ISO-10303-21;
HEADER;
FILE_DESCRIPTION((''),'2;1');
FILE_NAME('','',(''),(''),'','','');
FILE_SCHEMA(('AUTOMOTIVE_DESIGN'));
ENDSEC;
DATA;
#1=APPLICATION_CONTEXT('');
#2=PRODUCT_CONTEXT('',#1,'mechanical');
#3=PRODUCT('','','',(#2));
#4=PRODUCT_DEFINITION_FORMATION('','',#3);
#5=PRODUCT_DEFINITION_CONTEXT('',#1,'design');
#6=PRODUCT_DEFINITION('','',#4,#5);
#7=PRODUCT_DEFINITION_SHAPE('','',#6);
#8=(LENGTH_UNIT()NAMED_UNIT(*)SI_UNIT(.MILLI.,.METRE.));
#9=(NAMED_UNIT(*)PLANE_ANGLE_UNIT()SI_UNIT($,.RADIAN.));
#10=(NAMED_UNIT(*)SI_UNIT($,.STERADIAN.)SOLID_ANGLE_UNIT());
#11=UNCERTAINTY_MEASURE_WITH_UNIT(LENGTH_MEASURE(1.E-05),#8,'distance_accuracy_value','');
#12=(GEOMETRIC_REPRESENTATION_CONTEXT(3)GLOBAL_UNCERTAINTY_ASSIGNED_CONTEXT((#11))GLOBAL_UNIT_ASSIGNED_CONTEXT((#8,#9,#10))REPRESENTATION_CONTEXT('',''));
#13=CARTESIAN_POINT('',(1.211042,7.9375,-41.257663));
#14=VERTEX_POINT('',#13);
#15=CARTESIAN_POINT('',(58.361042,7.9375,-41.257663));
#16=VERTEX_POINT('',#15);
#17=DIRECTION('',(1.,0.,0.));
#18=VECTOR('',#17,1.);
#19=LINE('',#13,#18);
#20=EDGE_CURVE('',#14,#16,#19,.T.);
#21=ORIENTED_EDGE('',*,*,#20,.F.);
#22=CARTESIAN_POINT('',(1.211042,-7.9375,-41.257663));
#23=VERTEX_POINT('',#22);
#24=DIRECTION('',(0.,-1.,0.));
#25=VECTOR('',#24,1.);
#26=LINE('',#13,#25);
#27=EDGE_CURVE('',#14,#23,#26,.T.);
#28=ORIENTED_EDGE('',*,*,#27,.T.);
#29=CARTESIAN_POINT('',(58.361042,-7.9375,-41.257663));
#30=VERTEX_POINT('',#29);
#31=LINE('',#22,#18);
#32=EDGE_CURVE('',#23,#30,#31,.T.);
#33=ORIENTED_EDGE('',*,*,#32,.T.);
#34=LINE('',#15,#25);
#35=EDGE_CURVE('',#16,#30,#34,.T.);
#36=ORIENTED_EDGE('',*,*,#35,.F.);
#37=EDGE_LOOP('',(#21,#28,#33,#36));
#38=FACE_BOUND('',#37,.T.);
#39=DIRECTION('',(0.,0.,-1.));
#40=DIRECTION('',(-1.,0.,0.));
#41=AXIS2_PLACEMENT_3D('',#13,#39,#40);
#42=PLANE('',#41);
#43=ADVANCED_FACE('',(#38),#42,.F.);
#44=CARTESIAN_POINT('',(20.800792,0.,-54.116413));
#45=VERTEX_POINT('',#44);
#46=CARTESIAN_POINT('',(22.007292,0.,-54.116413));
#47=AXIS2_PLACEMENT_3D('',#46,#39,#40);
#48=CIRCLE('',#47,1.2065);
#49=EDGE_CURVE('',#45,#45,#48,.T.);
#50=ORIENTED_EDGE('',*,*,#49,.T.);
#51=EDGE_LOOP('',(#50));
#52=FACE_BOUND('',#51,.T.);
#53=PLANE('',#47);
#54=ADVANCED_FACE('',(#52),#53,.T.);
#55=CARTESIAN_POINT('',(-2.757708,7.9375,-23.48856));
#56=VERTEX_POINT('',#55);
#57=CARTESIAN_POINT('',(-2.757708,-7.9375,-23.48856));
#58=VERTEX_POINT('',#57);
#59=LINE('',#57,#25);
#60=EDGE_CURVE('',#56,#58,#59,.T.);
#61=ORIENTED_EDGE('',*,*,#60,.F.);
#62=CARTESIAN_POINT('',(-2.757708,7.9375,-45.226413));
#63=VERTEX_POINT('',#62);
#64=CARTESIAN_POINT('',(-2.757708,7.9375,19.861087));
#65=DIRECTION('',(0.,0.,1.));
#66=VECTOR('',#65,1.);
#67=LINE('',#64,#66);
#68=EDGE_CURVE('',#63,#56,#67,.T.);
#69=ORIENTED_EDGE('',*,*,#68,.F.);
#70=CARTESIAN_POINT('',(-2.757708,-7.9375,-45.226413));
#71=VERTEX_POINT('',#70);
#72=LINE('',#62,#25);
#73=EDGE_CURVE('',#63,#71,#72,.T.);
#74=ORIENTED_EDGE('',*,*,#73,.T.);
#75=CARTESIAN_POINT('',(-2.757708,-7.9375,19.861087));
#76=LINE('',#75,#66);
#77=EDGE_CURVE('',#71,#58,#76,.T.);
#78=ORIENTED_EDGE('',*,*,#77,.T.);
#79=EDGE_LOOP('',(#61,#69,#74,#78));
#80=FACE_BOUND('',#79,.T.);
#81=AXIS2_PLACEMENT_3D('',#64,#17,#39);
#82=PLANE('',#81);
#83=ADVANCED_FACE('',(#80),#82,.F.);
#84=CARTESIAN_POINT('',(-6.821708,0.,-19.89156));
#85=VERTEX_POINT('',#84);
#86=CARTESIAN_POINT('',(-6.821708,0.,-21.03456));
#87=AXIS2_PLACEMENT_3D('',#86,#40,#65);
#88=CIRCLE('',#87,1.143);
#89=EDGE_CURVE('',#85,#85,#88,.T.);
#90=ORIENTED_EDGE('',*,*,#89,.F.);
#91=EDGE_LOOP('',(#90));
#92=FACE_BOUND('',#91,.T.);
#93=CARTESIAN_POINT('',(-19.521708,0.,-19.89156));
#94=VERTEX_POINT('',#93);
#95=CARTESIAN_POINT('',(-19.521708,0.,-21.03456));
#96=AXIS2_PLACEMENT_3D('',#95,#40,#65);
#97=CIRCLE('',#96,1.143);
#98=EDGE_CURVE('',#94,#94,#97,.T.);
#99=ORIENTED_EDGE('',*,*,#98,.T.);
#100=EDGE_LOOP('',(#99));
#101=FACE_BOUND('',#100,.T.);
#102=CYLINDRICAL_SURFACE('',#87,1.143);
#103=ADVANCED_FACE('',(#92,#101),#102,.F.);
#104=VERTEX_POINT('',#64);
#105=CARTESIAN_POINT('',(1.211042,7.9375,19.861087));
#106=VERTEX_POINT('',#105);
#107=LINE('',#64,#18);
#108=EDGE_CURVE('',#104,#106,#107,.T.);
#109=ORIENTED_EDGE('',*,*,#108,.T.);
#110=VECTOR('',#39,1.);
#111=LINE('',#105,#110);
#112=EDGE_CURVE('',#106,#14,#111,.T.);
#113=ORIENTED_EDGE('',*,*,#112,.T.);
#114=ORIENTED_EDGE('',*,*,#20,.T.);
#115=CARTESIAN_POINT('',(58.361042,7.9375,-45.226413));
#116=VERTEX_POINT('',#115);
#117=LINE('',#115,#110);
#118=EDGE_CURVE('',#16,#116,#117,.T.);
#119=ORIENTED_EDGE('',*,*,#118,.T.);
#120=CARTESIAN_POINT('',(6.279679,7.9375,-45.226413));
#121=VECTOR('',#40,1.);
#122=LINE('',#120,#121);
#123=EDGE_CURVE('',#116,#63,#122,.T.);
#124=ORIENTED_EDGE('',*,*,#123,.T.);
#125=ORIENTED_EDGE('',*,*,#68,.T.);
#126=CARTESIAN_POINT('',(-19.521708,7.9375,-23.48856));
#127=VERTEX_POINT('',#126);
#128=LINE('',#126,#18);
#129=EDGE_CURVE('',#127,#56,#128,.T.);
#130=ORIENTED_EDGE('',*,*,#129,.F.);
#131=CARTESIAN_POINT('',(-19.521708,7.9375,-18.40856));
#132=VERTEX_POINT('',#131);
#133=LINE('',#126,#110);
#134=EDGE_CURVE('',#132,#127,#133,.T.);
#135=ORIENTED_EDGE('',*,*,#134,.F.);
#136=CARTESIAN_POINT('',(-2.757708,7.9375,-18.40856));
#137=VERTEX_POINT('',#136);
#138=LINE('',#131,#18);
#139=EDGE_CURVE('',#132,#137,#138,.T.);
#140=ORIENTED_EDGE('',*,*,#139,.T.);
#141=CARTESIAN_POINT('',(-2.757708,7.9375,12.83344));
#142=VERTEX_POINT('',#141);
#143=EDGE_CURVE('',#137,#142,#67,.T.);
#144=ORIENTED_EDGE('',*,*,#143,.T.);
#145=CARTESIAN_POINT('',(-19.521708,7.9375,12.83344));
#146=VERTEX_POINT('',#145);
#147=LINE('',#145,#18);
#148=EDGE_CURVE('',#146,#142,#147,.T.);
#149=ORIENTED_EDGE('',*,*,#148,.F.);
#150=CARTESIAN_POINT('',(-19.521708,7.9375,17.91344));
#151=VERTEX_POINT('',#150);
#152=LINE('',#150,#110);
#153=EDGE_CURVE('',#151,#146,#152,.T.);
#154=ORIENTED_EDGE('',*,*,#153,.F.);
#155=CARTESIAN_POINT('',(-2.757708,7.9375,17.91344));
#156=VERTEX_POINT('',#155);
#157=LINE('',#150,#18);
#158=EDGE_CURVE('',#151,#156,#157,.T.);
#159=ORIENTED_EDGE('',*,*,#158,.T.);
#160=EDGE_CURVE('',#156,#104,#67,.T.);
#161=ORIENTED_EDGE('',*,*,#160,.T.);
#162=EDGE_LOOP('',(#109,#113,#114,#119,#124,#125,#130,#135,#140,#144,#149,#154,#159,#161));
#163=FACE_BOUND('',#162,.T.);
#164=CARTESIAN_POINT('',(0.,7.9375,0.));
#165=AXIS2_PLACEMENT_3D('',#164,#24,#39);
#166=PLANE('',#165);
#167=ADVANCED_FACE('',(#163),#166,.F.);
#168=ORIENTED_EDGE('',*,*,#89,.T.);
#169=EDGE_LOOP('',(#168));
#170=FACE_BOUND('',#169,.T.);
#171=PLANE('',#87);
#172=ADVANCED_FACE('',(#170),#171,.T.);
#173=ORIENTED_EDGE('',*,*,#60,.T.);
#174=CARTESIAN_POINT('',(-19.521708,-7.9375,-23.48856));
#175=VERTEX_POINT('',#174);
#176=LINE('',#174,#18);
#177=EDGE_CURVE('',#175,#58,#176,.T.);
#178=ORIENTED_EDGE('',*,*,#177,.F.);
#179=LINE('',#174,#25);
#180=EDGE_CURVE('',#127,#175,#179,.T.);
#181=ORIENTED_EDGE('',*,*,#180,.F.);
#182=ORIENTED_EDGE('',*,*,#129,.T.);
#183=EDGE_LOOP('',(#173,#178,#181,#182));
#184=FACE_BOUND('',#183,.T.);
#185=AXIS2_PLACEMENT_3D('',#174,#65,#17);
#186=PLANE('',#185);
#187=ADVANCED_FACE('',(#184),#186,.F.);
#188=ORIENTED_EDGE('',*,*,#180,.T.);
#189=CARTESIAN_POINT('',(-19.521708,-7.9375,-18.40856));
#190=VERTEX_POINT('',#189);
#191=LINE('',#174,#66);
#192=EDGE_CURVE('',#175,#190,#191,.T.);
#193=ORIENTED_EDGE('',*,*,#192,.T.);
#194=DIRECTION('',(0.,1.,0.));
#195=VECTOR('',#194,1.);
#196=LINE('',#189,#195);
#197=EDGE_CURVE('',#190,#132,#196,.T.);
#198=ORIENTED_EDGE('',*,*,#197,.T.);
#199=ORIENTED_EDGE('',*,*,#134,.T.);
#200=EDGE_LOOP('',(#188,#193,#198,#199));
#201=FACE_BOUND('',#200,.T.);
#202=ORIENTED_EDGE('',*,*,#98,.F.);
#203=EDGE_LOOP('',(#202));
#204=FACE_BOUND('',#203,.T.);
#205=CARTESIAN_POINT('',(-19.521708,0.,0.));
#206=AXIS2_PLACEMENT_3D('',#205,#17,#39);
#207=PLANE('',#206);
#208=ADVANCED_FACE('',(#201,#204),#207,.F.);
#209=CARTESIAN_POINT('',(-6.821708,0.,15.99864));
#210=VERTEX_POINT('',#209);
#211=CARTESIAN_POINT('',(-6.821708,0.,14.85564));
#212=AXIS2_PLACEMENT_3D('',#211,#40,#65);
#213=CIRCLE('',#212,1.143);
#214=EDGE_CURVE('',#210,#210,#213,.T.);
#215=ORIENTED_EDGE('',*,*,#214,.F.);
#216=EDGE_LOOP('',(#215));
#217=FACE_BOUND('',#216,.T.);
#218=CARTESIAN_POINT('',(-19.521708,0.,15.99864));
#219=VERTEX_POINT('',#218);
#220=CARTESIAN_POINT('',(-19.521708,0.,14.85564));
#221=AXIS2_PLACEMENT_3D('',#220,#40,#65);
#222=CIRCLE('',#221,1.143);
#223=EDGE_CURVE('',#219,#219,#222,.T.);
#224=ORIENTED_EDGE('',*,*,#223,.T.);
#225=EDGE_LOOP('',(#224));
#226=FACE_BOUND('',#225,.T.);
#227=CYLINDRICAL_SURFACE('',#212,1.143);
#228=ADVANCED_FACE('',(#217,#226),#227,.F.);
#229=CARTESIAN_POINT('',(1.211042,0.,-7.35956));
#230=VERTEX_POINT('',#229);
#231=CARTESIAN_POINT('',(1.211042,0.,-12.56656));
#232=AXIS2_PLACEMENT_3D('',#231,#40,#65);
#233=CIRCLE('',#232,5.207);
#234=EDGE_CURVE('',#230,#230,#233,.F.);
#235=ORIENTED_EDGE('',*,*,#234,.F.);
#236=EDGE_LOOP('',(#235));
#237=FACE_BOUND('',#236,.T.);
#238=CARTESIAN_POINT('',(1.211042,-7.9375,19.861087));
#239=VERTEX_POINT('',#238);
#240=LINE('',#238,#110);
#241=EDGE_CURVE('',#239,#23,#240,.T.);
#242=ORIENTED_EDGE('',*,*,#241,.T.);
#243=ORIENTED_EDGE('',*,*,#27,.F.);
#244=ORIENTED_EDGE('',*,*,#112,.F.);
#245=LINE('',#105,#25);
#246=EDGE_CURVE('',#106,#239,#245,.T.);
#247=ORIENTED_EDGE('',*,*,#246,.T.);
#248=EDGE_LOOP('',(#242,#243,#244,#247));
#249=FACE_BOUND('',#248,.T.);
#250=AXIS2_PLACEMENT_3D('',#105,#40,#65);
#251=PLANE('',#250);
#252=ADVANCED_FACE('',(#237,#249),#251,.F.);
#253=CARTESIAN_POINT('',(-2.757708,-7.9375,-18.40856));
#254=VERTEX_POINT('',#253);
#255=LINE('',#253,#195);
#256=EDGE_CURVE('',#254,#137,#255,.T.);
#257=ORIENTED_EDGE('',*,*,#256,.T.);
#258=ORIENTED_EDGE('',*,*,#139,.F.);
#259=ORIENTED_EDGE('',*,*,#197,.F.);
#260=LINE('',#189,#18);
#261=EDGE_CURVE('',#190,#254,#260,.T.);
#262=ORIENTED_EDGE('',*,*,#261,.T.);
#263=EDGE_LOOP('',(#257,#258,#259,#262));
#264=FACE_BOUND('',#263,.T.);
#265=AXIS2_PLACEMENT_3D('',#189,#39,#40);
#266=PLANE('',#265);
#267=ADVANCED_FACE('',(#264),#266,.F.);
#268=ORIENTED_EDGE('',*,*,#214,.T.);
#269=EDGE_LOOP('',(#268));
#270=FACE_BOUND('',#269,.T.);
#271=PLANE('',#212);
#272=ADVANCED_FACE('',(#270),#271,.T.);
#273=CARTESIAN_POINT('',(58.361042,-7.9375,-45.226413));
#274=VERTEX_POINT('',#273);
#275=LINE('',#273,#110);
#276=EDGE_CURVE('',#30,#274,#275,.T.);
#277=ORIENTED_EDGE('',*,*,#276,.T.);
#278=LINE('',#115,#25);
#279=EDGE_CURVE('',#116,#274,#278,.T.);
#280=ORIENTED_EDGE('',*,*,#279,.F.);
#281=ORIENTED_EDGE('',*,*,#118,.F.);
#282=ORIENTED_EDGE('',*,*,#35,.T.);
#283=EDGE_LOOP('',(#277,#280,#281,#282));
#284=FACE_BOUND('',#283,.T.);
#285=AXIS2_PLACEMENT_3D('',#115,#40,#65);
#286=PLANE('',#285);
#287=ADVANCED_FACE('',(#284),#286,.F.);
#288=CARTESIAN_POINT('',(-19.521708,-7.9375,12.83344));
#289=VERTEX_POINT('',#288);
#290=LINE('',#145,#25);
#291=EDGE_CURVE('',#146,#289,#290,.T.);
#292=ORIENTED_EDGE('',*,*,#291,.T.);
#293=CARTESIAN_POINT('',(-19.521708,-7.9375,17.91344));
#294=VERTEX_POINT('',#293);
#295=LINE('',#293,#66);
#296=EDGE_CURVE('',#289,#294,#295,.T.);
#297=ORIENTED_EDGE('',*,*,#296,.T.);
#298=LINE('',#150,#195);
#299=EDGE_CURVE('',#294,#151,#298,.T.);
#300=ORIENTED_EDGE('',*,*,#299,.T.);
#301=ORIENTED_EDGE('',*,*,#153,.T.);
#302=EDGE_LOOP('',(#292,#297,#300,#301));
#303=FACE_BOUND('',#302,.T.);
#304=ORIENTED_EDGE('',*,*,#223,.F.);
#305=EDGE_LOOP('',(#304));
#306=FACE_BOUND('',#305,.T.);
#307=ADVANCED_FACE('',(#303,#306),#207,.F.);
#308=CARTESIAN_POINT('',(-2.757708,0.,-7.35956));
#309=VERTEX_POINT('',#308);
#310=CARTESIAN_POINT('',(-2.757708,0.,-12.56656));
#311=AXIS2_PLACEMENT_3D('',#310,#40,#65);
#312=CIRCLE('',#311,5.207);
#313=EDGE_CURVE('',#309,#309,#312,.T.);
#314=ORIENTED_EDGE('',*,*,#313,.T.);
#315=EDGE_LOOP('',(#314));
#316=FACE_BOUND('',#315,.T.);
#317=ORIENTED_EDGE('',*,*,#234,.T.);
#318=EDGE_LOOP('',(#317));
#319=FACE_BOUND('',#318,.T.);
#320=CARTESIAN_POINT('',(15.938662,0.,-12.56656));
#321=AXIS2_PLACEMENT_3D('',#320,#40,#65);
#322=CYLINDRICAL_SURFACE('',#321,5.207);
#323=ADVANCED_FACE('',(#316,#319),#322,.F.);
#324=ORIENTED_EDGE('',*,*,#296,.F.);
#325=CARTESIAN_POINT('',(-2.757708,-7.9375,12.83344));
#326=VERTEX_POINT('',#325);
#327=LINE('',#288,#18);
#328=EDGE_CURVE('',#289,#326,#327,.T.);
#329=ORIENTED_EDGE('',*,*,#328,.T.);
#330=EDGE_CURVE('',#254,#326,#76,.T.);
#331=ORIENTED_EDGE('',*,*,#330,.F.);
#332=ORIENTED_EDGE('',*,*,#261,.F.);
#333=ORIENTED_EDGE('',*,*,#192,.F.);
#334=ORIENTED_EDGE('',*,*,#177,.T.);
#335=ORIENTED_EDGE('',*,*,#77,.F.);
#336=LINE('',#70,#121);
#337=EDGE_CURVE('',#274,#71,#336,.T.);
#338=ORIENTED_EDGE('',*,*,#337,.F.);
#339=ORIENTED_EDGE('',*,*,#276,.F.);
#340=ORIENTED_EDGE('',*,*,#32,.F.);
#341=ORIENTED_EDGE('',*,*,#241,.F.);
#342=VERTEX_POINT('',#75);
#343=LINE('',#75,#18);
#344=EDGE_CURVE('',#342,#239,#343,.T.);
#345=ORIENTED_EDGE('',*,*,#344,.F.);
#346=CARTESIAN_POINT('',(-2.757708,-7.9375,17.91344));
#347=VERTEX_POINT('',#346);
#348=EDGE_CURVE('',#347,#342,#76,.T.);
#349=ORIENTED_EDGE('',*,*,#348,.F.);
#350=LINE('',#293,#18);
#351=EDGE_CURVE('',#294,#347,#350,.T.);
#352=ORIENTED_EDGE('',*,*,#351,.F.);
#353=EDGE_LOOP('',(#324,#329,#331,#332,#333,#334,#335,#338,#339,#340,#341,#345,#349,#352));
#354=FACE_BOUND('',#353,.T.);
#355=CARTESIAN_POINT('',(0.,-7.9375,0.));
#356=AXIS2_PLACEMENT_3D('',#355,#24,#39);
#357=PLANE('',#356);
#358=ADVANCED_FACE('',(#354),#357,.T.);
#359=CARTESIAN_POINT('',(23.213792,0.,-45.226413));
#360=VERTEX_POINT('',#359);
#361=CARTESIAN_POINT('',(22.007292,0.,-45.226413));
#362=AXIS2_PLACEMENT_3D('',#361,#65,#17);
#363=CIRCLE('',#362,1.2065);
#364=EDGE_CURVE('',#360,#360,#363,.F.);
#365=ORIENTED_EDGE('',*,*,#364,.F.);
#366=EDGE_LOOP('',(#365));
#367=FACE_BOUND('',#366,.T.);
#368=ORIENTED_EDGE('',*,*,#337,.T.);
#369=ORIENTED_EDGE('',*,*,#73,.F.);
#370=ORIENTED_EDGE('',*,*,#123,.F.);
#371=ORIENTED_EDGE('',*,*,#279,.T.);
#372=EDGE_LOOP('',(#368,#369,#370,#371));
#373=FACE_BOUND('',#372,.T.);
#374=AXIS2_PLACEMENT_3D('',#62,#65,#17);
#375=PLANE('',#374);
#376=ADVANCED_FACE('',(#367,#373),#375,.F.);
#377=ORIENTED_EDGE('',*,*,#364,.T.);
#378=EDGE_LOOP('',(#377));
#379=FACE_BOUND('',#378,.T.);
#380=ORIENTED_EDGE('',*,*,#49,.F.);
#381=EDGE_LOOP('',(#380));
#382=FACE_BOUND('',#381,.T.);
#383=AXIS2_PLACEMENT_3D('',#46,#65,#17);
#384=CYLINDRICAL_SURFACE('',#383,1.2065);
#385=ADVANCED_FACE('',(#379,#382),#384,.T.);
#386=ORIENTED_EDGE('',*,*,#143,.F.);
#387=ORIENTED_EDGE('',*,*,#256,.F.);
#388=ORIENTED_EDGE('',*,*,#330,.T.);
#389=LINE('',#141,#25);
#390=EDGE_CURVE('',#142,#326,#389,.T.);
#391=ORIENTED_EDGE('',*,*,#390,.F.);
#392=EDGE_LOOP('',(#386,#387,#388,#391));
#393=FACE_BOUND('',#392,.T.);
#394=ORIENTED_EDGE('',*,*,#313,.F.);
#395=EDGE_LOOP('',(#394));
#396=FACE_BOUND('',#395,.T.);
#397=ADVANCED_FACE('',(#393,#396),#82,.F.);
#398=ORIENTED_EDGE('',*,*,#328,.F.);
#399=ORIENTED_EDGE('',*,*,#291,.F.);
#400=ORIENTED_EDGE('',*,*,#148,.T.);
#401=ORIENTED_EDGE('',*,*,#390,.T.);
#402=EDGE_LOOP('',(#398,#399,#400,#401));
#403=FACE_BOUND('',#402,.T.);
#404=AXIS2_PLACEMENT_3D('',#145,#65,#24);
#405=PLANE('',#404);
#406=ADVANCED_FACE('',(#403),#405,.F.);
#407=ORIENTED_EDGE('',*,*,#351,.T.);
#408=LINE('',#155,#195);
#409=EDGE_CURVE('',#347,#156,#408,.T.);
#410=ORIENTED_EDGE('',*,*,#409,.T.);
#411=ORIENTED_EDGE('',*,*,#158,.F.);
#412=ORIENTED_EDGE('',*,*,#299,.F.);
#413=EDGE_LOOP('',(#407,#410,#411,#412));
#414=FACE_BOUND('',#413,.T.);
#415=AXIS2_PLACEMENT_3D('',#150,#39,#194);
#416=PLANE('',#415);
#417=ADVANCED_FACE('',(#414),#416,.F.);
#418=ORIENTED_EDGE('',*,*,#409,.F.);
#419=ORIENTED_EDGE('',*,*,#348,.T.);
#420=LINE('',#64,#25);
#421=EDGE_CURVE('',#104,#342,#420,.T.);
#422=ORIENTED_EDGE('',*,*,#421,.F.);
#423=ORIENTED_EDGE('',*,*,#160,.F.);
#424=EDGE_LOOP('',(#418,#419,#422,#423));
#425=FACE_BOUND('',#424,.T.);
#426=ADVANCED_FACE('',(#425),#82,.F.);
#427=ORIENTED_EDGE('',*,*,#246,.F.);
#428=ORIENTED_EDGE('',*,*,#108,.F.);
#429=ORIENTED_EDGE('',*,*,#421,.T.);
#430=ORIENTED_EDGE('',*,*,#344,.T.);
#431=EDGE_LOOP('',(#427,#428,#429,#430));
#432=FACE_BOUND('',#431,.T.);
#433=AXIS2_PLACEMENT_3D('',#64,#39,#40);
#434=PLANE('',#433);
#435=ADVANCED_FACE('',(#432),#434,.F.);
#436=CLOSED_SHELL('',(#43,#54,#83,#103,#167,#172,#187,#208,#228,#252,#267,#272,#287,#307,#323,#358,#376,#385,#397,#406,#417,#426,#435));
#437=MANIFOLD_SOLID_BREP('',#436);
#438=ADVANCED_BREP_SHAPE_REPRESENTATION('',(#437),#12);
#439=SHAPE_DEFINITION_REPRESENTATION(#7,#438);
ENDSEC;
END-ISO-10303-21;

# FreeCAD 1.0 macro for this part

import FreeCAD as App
import Part
import Sketcher
from FreeCAD import Vector
Q = App.Units.Quantity

doc = App.newDocument("Part")
body = doc.addObject("PartDesign::Body", "Body")

sketch1 = body.newObject("Sketcher::SketchObject", "Sketch")
sketch1.AttachmentSupport = (doc.getObject("XZ_Plane"), [""])
sketch1.MapMode = "FlatFace"
sketch1.addGeometry([
    Part.LineSegment(Vector(-2.757708, 19.861087, 0), Vector(1.211042, 19.861087, 0)),
    Part.LineSegment(Vector(1.211042, 19.861087, 0), Vector(1.211042, -41.257663, 0)),
    Part.LineSegment(Vector(1.211042, -41.257663, 0), Vector(58.361042, -41.257663, 0)),
    Part.LineSegment(Vector(58.361042, -41.257663, 0), Vector(58.361042, -45.226413, 0)),
    Part.LineSegment(Vector(58.361042, -45.226413, 0), Vector(-2.757708, -45.226413, 0)),
    Part.LineSegment(Vector(-2.757708, -45.226413, 0), Vector(-2.757708, 19.861087, 0)),
], False)
sketch1.addConstraint([
    Sketcher.Constraint("Coincident", 0, 2, 1, 1),
    Sketcher.Constraint("Coincident", 1, 2, 2, 1),
    Sketcher.Constraint("Coincident", 2, 2, 3, 1),
    Sketcher.Constraint("Coincident", 3, 2, 4, 1),
    Sketcher.Constraint("Coincident", 4, 2, 5, 1),
    Sketcher.Constraint("Coincident", 5, 2, 0, 1),
    Sketcher.Constraint("Horizontal", 0),
    Sketcher.Constraint("Vertical", 1),
    Sketcher.Constraint("Horizontal", 2),
    Sketcher.Constraint("Vertical", 3),
    Sketcher.Constraint("Horizontal", 4),
    Sketcher.Constraint("Vertical", 5),
    Sketcher.Constraint("Equal", 4, 1),
    Sketcher.Constraint("Equal", 0, 3),
    Sketcher.Constraint("DistanceX", 2, 1, 2, 2, Q("2.25 in")),
    Sketcher.Constraint("DistanceX", 0, 1, 0, 2, Q("0.15625 in")),
    Sketcher.Constraint("DistanceX", -1, 1, 0, 2, Q("1.211042 mm")),
    Sketcher.Constraint("DistanceY", -1, 1, 0, 2, Q("19.861087 mm")),
])
pad1 = body.newObject("PartDesign::Pad", "Pad")
pad1.Profile = sketch1
pad1.Length = Q("0.625 in")
pad1.Midplane = True

sketch2 = body.newObject("Sketcher::SketchObject", "Sketch001")
sketch2.AttachmentSupport = (doc.getObject("YZ_Plane"), [""])
sketch2.MapMode = "FlatFace"
sketch2.AttachmentOffset = App.Placement(Vector(0, 0, -2.757708), App.Rotation())
sketch2.addGeometry(Part.Circle(Vector(0, -12.56656, 0), Vector(0, 0, 1), 5.207), False)
sketch2.addConstraint([
    Sketcher.Constraint("PointOnObject", 0, 3, -2),
    Sketcher.Constraint("Diameter", 0, Q("0.41 in")),
    Sketcher.Constraint("DistanceY", 0, 3, -1, 1, Q("12.56656 mm")),
])
pocket1 = body.newObject("PartDesign::Pocket", "Pocket")
pocket1.Profile = sketch2
pocket1.Length = Q("0.15625 in")
pocket1.Reversed = True

sketch3 = body.newObject("Sketcher::SketchObject", "Sketch002")
sketch3.AttachmentSupport = (doc.getObject("XY_Plane"), [""])
sketch3.MapMode = "FlatFace"
sketch3.AttachmentOffset = App.Placement(Vector(0, 0, -45.226413), App.Rotation())
sketch3.addGeometry(Part.Circle(Vector(22.007292, 0, 0), Vector(0, 0, 1), 1.2065), False)
sketch3.addConstraint([
    Sketcher.Constraint("PointOnObject", 0, 3, -1),
    Sketcher.Constraint("Diameter", 0, Q("0.095 in")),
    Sketcher.Constraint("DistanceX", -1, 1, 0, 3, Q("22.007292 mm")),
])
pad2 = body.newObject("PartDesign::Pad", "Pad001")
pad2.Profile = sketch3
pad2.Length = Q("0.35 in")
pad2.Reversed = True

sketch4 = body.newObject("Sketcher::SketchObject", "Sketch003")
sketch4.AttachmentSupport = (doc.getObject("YZ_Plane"), [""])
sketch4.MapMode = "FlatFace"
sketch4.AttachmentOffset = App.Placement(Vector(0, 0, -2.757708), App.Rotation())
sketch4.addGeometry([
    Part.LineSegment(Vector(7.9375, -23.48856, 0), Vector(-7.9375, -23.48856, 0)),
    Part.LineSegment(Vector(-7.9375, -23.48856, 0), Vector(-7.9375, -18.40856, 0)),
    Part.LineSegment(Vector(-7.9375, -18.40856, 0), Vector(7.9375, -18.40856, 0)),
    Part.LineSegment(Vector(7.9375, -18.40856, 0), Vector(7.9375, -23.48856, 0)),
    Part.LineSegment(Vector(7.9375, 12.83344, 0), Vector(-7.9375, 12.83344, 0)),
    Part.LineSegment(Vector(-7.9375, 12.83344, 0), Vector(-7.9375, 17.91344, 0)),
    Part.LineSegment(Vector(-7.9375, 17.91344, 0), Vector(7.9375, 17.91344, 0)),
    Part.LineSegment(Vector(7.9375, 17.91344, 0), Vector(7.9375, 12.83344, 0)),
], False)
sketch4.addConstraint([
    Sketcher.Constraint("Coincident", 0, 2, 1, 1),
    Sketcher.Constraint("Coincident", 1, 2, 2, 1),
    Sketcher.Constraint("Coincident", 2, 2, 3, 1),
    Sketcher.Constraint("Coincident", 3, 2, 0, 1),
    Sketcher.Constraint("Coincident", 4, 2, 5, 1),
    Sketcher.Constraint("Coincident", 5, 2, 6, 1),
    Sketcher.Constraint("Coincident", 6, 2, 7, 1),
    Sketcher.Constraint("Coincident", 7, 2, 4, 1),
    Sketcher.Constraint("Horizontal", 0),
    Sketcher.Constraint("Vertical", 1),
    Sketcher.Constraint("Horizontal", 2),
    Sketcher.Constraint("Vertical", 3),
    Sketcher.Constraint("Horizontal", 4),
    Sketcher.Constraint("Vertical", 5),
    Sketcher.Constraint("Horizontal", 6),
    Sketcher.Constraint("Vertical", 7),
    Sketcher.Constraint("Vertical", 1, 2, 4, 2),
    Sketcher.Constraint("Vertical", 3, 2, 6, 2),
    Sketcher.Constraint("Equal", 3, 5),
    Sketcher.Constraint("DistanceY", 1, 1, 1, 2, Q("0.2 in")),
    Sketcher.Constraint("DistanceX", 0, 2, 0, 1, Q("0.625 in")),
    Sketcher.Constraint("DistanceY", 1, 2, 4, 2, Q("1.23 in")),
    Sketcher.Constraint("DistanceX", 0, 2, -1, 1, Q("0.3125 in")),
    Sketcher.Constraint("DistanceY", 0, 2, -1, 1, Q("23.48856 mm")),
])
pad3 = body.newObject("PartDesign::Pad", "Pad002")
pad3.Profile = sketch4
pad3.Length = Q("0.66 in")
pad3.Reversed = True

sketch5 = body.newObject("Sketcher::SketchObject", "Sketch004")
sketch5.AttachmentSupport = (doc.getObject("YZ_Plane"), [""])
sketch5.MapMode = "FlatFace"
sketch5.AttachmentOffset = App.Placement(Vector(0, 0, -19.521708), App.Rotation())
sketch5.addGeometry([
    Part.Circle(Vector(0, 14.85564, 0), Vector(0, 0, 1), 1.143),
    Part.Circle(Vector(0, -21.03456, 0), Vector(0, 0, 1), 1.143),
], False)
sketch5.addConstraint([
    Sketcher.Constraint("Equal", 0, 1),
    Sketcher.Constraint("PointOnObject", 0, 3, -2),
    Sketcher.Constraint("PointOnObject", 1, 3, -2),
    Sketcher.Constraint("Diameter", 0, Q("0.09 in")),
    Sketcher.Constraint("DistanceY", 1, 3, 0, 3, Q("1.413 in")),
    Sketcher.Constraint("DistanceY", -1, 1, 0, 3, Q("14.85564 mm")),
])
pocket2 = body.newObject("PartDesign::Pocket", "Pocket001")
pocket2.Profile = sketch5
pocket2.Length = Q("0.5 in")
pocket2.Reversed = True

doc.recompute()
